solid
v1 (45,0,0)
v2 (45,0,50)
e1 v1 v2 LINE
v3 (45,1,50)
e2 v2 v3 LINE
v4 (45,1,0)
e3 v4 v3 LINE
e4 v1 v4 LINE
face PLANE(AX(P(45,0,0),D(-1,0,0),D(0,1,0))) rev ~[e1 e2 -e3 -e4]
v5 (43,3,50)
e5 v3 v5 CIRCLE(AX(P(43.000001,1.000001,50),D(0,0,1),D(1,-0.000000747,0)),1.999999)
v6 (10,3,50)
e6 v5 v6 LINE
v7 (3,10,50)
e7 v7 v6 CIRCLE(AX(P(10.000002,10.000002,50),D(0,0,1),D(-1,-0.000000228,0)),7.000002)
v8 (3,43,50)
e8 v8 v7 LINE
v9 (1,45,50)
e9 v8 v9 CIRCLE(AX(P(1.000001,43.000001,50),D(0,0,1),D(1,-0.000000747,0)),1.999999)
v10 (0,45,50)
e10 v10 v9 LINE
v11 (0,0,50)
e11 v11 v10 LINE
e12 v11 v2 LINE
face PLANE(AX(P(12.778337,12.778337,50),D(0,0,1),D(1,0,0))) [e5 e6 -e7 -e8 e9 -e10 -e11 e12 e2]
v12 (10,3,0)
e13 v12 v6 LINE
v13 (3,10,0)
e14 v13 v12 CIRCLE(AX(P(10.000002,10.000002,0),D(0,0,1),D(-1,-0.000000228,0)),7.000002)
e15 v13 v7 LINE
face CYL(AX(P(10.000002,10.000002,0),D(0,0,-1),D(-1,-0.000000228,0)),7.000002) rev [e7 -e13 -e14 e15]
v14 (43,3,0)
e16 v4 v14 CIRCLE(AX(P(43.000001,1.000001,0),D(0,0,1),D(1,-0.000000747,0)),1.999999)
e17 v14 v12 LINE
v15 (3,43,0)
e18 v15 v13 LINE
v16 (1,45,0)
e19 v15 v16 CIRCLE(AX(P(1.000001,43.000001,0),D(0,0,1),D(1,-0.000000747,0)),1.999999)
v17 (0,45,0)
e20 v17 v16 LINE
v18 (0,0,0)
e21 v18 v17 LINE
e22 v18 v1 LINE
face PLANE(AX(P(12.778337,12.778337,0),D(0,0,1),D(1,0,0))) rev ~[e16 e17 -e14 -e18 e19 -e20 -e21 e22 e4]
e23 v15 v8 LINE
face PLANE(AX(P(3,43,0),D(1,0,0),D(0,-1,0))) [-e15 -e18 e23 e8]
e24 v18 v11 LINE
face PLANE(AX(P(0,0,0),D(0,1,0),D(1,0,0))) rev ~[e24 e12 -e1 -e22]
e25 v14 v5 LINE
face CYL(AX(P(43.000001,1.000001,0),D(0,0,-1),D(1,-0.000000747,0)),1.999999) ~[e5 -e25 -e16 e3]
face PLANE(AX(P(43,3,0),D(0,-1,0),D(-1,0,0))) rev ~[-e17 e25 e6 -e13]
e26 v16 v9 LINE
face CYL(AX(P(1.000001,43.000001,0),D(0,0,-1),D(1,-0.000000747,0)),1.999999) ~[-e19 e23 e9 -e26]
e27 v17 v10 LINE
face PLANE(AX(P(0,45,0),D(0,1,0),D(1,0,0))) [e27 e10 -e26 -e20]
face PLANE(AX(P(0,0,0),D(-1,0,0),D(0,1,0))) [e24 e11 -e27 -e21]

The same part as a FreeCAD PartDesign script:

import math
import FreeCAD as App
import Part
import Sketcher
from FreeCAD import Vector

doc = App.newDocument("Part")
params = doc.addObject("Spreadsheet::Sheet", "Params")
for row, (alias, value) in enumerate([
    ("sketch1_radius", "1.999999 mm"),
    ("sketch1_radius2", "7.000002 mm"),
    ("sketch1_width", "45 mm"),
    ("sketch1_width2", "33 mm"),
    ("pad1_length", "50 mm"),
], start=1):
    params.set(f"A{row}", alias)
    params.set(f"B{row}", "=" + value)
    params.setAlias(f"B{row}", alias)

body = doc.addObject("PartDesign::Body", "Body")

sketch1 = body.newObject("Sketcher::SketchObject", "Sketch")
sketch1.AttachmentSupport = (doc.getObject("XY_Plane"), [""])
sketch1.MapMode = "FlatFace"
sketch1.addGeometry([
    Part.LineSegment(Vector(0, 0, 0), Vector(45, 0, 0)),
    Part.LineSegment(Vector(45, 0, 0), Vector(45, 1, 0)),
    Part.ArcOfCircle(Part.Circle(Vector(43.000001, 1.000001, 0), Vector(0, 0, 1), 1.999999), math.radians(-0.000043), math.radians(90.000043)),
    Part.LineSegment(Vector(43, 3, 0), Vector(10, 3, 0)),
    Part.ArcOfCircle(Part.Circle(Vector(10.000002, 10.000002, 0), Vector(0, 0, 1), 7.000002), math.radians(-179.999987), math.radians(-90.000013)),
    Part.LineSegment(Vector(3, 10, 0), Vector(3, 43, 0)),
    Part.ArcOfCircle(Part.Circle(Vector(1.000001, 43.000001, 0), Vector(0, 0, 1), 1.999999), math.radians(-0.000043), math.radians(90.000043)),
    Part.LineSegment(Vector(1, 45, 0), Vector(0, 45, 0)),
    Part.LineSegment(Vector(0, 45, 0), Vector(0, 0, 0)),
], False)
sketch1.addConstraint([
    Sketcher.Constraint("Coincident", 0, 2, 1, 1),
    Sketcher.Constraint("Tangent", 1, 2, 2, 1),
    Sketcher.Constraint("Tangent", 2, 2, 3, 1),
    Sketcher.Constraint("Tangent", 3, 2, 4, 2),
    Sketcher.Constraint("Tangent", 4, 1, 5, 1),
    Sketcher.Constraint("Tangent", 5, 2, 6, 1),
    Sketcher.Constraint("Tangent", 6, 2, 7, 1),
    Sketcher.Constraint("Coincident", 7, 2, 8, 1),
    Sketcher.Constraint("Coincident", 8, 2, 0, 1),
    Sketcher.Constraint("Horizontal", 0),
    Sketcher.Constraint("Vertical", 1),
    Sketcher.Constraint("Horizontal", 3),
    Sketcher.Constraint("Vertical", 5),
    Sketcher.Constraint("Horizontal", 7),
    Sketcher.Constraint("Vertical", 8),
    Sketcher.Constraint("Coincident", 8, 2, -1, 1),
    Sketcher.Constraint("Equal", 2, 6),
    Sketcher.Constraint("Equal", 7, 1),
    Sketcher.Constraint("Equal", 3, 5),
    Sketcher.Constraint("Radius", 2, 1.999999),
    Sketcher.Constraint("Radius", 4, 7.000002),
    Sketcher.Constraint("DistanceX", 0, 1, 0, 2, 45.0),
    Sketcher.Constraint("DistanceX", 3, 2, 3, 1, 33.0),
])
sketch1.setExpression("Constraints[19]", "Params.sketch1_radius")
sketch1.setExpression("Constraints[20]", "Params.sketch1_radius2")
sketch1.setExpression("Constraints[21]", "Params.sketch1_width")
sketch1.setExpression("Constraints[22]", "Params.sketch1_width2")
pad1 = body.newObject("PartDesign::Pad", "Pad")
pad1.Profile = sketch1
pad1.setExpression("Length", "Params.pad1_length")

doc.recompute()
